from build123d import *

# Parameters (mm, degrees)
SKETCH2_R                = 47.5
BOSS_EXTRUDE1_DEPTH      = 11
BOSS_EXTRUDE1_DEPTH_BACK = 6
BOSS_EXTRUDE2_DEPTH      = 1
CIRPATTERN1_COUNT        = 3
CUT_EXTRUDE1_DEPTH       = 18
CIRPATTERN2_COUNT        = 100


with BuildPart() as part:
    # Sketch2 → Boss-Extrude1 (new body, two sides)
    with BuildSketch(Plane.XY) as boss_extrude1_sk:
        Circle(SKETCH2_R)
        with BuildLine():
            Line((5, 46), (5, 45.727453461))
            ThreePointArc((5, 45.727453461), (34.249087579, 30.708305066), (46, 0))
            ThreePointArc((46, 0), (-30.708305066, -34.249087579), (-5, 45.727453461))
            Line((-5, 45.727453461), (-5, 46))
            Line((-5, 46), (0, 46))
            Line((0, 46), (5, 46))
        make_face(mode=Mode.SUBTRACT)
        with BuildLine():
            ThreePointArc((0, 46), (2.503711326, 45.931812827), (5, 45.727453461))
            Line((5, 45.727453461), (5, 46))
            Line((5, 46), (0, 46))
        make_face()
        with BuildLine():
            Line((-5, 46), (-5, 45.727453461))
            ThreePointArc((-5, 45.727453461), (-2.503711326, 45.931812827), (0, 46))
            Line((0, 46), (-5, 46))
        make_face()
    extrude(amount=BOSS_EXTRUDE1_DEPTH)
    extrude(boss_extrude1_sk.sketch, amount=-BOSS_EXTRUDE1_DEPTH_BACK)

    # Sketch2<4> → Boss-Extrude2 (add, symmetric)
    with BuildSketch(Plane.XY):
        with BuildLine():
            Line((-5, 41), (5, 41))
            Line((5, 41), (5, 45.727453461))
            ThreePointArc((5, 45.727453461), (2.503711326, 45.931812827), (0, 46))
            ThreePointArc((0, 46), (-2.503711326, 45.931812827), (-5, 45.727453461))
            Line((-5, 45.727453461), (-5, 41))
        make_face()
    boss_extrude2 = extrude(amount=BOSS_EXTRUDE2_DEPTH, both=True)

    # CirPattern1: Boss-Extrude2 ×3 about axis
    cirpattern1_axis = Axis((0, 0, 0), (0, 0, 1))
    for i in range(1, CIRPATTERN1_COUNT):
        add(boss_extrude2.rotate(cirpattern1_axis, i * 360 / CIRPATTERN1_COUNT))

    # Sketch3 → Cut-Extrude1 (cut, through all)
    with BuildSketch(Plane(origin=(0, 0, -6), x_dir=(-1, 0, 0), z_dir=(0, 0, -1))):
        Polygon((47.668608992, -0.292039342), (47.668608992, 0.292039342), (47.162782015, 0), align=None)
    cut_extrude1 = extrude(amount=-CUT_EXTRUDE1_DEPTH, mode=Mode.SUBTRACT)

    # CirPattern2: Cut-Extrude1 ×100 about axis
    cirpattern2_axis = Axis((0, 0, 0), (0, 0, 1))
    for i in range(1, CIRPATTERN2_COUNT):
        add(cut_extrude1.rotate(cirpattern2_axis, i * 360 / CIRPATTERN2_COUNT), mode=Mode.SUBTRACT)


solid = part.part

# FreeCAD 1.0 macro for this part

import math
import FreeCAD as App
import Part
import Sketcher
Q = App.Units.Quantity

doc = App.newDocument("Part")
body = doc.addObject("PartDesign::Body", "Body")

sketch1 = doc.addObject("Sketcher::SketchObject", "Sketch")
body.addObject(sketch1)
sketch1.AttachmentSupport = (doc.XY_Plane, [""])
sketch1.MapMode = "FlatFace"
sketch1.addGeometry(Part.Circle(App.Vector(0, 0, 0), App.Vector(0, 0, 1), 48), False)
sketch1.addGeometry(Part.ArcOfCircle(Part.Circle(App.Vector(0, 0, 0), App.Vector(0, 0, 1), 46), math.radians(83.76), math.radians(90)), False)
sketch1.addGeometry(Part.ArcOfCircle(Part.Circle(App.Vector(0, 0, 0), App.Vector(0, 0, 1), 46), math.radians(0), math.radians(84)), False)
sketch1.addGeometry(Part.ArcOfCircle(Part.Circle(App.Vector(0, 0, 0), App.Vector(0, 0, 1), 46), math.radians(96), math.radians(360)), False)
sketch1.addGeometry(Part.ArcOfCircle(Part.Circle(App.Vector(0, 0, 0), App.Vector(0, 0, 1), 46), math.radians(90), math.radians(96.24)), False)
sketch1.addConstraint(Sketcher.Constraint("Tangent", 1, 1, 2, 2))
sketch1.addConstraint(Sketcher.Constraint("Tangent", 2, 1, 3, 2))
sketch1.addConstraint(Sketcher.Constraint("Tangent", 3, 1, 4, 2))
sketch1.addConstraint(Sketcher.Constraint("Tangent", 4, 1, 1, 2))
sketch1.addConstraint(Sketcher.Constraint("Coincident", 0, 3, -1, 1))
sketch1.addConstraint(Sketcher.Constraint("Coincident", 1, 3, -1, 1))
sketch1.addConstraint(Sketcher.Constraint("Equal", 1, 2))
sketch1.addConstraint(Sketcher.Constraint("PointOnObject", 2, 1, -1))
sketch1.addConstraint(Sketcher.Constraint("PointOnObject", 4, 1, -2))
sketch1.addConstraint(Sketcher.Constraint("Horizontal", 1, 1, 3, 1))
sketch1.addConstraint(Sketcher.Constraint("Diameter", 0, Q("95 mm")))
sketch1.addConstraint(Sketcher.Constraint("Radius", 1, Q("46 mm")))
sketch1.addConstraint(Sketcher.Constraint("DistanceX", -1, 1, 1, 1, Q("5 mm")))
pad1 = doc.addObject("PartDesign::Pad", "Pad")
body.addObject(pad1)
pad1.Profile = sketch1
pad1.Type = "TwoLengths"
pad1.Length = 11
pad1.Length2 = 6

sketch2 = doc.addObject("Sketcher::SketchObject", "Sketch001")
body.addObject(sketch2)
sketch2.AttachmentSupport = (doc.XY_Plane, [""])
sketch2.MapMode = "FlatFace"
sketch2.addGeometry(Part.LineSegment(App.Vector(-5, 41, 0), App.Vector(5, 41, 0)), False)
sketch2.addGeometry(Part.LineSegment(App.Vector(5, 41, 0), App.Vector(5, 45.7, 0)), False)
sketch2.addGeometry(Part.ArcOfCircle(Part.Circle(App.Vector(0, 0, 0), App.Vector(0, 0, 1), 46), math.radians(83.76), math.radians(90)), False)
sketch2.addGeometry(Part.ArcOfCircle(Part.Circle(App.Vector(0, 0, 0), App.Vector(0, 0, 1), 46), math.radians(90), math.radians(96.24)), False)
sketch2.addGeometry(Part.LineSegment(App.Vector(-5, 45.7, 0), App.Vector(-5, 41, 0)), False)
sketch2.addConstraint(Sketcher.Constraint("Coincident", 0, 2, 1, 1))
sketch2.addConstraint(Sketcher.Constraint("Coincident", 1, 2, 2, 1))
sketch2.addConstraint(Sketcher.Constraint("Tangent", 2, 2, 3, 1))
sketch2.addConstraint(Sketcher.Constraint("Coincident", 3, 2, 4, 1))
sketch2.addConstraint(Sketcher.Constraint("Coincident", 4, 2, 0, 1))
sketch2.addConstraint(Sketcher.Constraint("Horizontal", 0))
sketch2.addConstraint(Sketcher.Constraint("Vertical", 1))
sketch2.addConstraint(Sketcher.Constraint("Vertical", 4))
sketch2.addConstraint(Sketcher.Constraint("Coincident", 2, 3, -1, 1))
sketch2.addConstraint(Sketcher.Constraint("Equal", 2, 3))
sketch2.addConstraint(Sketcher.Constraint("PointOnObject", 2, 2, -2))
sketch2.addConstraint(Sketcher.Constraint("Horizontal", 1, 2, 3, 2))
sketch2.addConstraint(Sketcher.Constraint("Radius", 2, Q("46 mm")))
sketch2.addConstraint(Sketcher.Constraint("DistanceX", 0, 1, 0, 2, Q("10 mm")))
sketch2.addConstraint(Sketcher.Constraint("DistanceY", -1, 1, 0, 2, Q("41 mm")))
pad2 = doc.addObject("PartDesign::Pad", "Pad001")
body.addObject(pad2)
pad2.Profile = sketch2
pad2.Length = 2
pad2.Midplane = True
doc.recompute()

polarpattern = doc.addObject("PartDesign::PolarPattern", "PolarPattern")
body.addObject(polarpattern)
polarpattern.Originals = [pad2]
polarpattern.Axis = (doc.Z_Axis, [""])
polarpattern.Angle = 360
polarpattern.Occurrences = 3
body.Tip = polarpattern

sketch3 = doc.addObject("Sketcher::SketchObject", "Sketch002")
body.addObject(sketch3)
sketch3.AttachmentSupport = (doc.XY_Plane, [""])
sketch3.MapMode = "FlatFace"
sketch3.AttachmentOffset = App.Placement(App.Vector(0, 0, -6), App.Rotation())
sketch3.addGeometry(Part.LineSegment(App.Vector(-47.7, -0.3, 0), App.Vector(-47.7, 0.3, 0)), False)
sketch3.addGeometry(Part.LineSegment(App.Vector(-47.7, 0.3, 0), App.Vector(-47.2, 0, 0)), False)
sketch3.addGeometry(Part.LineSegment(App.Vector(-47.2, 0, 0), App.Vector(-47.7, -0.3, 0)), False)
sketch3.addConstraint(Sketcher.Constraint("Coincident", 0, 2, 1, 1))
sketch3.addConstraint(Sketcher.Constraint("Coincident", 1, 2, 2, 1))
sketch3.addConstraint(Sketcher.Constraint("Coincident", 2, 2, 0, 1))
sketch3.addConstraint(Sketcher.Constraint("Vertical", 0))
sketch3.addConstraint(Sketcher.Constraint("PointOnObject", 1, 2, -1))
sketch3.addConstraint(Sketcher.Constraint("Equal", 1, 2))
sketch3.addConstraint(Sketcher.Constraint("Angle", 1, Q("-30 deg")))
sketch3.addConstraint(Sketcher.Constraint("DistanceY", 0, 1, 0, 2, Q("0.584079 mm")))
sketch3.addConstraint(Sketcher.Constraint("DistanceX", 0, 2, -1, 1, Q("47.668609 mm")))
pocket1 = doc.addObject("PartDesign::Pocket", "Pocket")
body.addObject(pocket1)
pocket1.Profile = sketch3
pocket1.Type = "ThroughAll"
pocket1.Reversed = True
doc.recompute()

polarpattern2 = doc.addObject("PartDesign::PolarPattern", "PolarPattern001")
body.addObject(polarpattern2)
polarpattern2.Originals = [pocket1]
polarpattern2.Axis = (doc.Z_Axis, [""])
polarpattern2.Angle = 360
polarpattern2.Occurrences = 100
body.Tip = polarpattern2

doc.recompute()
